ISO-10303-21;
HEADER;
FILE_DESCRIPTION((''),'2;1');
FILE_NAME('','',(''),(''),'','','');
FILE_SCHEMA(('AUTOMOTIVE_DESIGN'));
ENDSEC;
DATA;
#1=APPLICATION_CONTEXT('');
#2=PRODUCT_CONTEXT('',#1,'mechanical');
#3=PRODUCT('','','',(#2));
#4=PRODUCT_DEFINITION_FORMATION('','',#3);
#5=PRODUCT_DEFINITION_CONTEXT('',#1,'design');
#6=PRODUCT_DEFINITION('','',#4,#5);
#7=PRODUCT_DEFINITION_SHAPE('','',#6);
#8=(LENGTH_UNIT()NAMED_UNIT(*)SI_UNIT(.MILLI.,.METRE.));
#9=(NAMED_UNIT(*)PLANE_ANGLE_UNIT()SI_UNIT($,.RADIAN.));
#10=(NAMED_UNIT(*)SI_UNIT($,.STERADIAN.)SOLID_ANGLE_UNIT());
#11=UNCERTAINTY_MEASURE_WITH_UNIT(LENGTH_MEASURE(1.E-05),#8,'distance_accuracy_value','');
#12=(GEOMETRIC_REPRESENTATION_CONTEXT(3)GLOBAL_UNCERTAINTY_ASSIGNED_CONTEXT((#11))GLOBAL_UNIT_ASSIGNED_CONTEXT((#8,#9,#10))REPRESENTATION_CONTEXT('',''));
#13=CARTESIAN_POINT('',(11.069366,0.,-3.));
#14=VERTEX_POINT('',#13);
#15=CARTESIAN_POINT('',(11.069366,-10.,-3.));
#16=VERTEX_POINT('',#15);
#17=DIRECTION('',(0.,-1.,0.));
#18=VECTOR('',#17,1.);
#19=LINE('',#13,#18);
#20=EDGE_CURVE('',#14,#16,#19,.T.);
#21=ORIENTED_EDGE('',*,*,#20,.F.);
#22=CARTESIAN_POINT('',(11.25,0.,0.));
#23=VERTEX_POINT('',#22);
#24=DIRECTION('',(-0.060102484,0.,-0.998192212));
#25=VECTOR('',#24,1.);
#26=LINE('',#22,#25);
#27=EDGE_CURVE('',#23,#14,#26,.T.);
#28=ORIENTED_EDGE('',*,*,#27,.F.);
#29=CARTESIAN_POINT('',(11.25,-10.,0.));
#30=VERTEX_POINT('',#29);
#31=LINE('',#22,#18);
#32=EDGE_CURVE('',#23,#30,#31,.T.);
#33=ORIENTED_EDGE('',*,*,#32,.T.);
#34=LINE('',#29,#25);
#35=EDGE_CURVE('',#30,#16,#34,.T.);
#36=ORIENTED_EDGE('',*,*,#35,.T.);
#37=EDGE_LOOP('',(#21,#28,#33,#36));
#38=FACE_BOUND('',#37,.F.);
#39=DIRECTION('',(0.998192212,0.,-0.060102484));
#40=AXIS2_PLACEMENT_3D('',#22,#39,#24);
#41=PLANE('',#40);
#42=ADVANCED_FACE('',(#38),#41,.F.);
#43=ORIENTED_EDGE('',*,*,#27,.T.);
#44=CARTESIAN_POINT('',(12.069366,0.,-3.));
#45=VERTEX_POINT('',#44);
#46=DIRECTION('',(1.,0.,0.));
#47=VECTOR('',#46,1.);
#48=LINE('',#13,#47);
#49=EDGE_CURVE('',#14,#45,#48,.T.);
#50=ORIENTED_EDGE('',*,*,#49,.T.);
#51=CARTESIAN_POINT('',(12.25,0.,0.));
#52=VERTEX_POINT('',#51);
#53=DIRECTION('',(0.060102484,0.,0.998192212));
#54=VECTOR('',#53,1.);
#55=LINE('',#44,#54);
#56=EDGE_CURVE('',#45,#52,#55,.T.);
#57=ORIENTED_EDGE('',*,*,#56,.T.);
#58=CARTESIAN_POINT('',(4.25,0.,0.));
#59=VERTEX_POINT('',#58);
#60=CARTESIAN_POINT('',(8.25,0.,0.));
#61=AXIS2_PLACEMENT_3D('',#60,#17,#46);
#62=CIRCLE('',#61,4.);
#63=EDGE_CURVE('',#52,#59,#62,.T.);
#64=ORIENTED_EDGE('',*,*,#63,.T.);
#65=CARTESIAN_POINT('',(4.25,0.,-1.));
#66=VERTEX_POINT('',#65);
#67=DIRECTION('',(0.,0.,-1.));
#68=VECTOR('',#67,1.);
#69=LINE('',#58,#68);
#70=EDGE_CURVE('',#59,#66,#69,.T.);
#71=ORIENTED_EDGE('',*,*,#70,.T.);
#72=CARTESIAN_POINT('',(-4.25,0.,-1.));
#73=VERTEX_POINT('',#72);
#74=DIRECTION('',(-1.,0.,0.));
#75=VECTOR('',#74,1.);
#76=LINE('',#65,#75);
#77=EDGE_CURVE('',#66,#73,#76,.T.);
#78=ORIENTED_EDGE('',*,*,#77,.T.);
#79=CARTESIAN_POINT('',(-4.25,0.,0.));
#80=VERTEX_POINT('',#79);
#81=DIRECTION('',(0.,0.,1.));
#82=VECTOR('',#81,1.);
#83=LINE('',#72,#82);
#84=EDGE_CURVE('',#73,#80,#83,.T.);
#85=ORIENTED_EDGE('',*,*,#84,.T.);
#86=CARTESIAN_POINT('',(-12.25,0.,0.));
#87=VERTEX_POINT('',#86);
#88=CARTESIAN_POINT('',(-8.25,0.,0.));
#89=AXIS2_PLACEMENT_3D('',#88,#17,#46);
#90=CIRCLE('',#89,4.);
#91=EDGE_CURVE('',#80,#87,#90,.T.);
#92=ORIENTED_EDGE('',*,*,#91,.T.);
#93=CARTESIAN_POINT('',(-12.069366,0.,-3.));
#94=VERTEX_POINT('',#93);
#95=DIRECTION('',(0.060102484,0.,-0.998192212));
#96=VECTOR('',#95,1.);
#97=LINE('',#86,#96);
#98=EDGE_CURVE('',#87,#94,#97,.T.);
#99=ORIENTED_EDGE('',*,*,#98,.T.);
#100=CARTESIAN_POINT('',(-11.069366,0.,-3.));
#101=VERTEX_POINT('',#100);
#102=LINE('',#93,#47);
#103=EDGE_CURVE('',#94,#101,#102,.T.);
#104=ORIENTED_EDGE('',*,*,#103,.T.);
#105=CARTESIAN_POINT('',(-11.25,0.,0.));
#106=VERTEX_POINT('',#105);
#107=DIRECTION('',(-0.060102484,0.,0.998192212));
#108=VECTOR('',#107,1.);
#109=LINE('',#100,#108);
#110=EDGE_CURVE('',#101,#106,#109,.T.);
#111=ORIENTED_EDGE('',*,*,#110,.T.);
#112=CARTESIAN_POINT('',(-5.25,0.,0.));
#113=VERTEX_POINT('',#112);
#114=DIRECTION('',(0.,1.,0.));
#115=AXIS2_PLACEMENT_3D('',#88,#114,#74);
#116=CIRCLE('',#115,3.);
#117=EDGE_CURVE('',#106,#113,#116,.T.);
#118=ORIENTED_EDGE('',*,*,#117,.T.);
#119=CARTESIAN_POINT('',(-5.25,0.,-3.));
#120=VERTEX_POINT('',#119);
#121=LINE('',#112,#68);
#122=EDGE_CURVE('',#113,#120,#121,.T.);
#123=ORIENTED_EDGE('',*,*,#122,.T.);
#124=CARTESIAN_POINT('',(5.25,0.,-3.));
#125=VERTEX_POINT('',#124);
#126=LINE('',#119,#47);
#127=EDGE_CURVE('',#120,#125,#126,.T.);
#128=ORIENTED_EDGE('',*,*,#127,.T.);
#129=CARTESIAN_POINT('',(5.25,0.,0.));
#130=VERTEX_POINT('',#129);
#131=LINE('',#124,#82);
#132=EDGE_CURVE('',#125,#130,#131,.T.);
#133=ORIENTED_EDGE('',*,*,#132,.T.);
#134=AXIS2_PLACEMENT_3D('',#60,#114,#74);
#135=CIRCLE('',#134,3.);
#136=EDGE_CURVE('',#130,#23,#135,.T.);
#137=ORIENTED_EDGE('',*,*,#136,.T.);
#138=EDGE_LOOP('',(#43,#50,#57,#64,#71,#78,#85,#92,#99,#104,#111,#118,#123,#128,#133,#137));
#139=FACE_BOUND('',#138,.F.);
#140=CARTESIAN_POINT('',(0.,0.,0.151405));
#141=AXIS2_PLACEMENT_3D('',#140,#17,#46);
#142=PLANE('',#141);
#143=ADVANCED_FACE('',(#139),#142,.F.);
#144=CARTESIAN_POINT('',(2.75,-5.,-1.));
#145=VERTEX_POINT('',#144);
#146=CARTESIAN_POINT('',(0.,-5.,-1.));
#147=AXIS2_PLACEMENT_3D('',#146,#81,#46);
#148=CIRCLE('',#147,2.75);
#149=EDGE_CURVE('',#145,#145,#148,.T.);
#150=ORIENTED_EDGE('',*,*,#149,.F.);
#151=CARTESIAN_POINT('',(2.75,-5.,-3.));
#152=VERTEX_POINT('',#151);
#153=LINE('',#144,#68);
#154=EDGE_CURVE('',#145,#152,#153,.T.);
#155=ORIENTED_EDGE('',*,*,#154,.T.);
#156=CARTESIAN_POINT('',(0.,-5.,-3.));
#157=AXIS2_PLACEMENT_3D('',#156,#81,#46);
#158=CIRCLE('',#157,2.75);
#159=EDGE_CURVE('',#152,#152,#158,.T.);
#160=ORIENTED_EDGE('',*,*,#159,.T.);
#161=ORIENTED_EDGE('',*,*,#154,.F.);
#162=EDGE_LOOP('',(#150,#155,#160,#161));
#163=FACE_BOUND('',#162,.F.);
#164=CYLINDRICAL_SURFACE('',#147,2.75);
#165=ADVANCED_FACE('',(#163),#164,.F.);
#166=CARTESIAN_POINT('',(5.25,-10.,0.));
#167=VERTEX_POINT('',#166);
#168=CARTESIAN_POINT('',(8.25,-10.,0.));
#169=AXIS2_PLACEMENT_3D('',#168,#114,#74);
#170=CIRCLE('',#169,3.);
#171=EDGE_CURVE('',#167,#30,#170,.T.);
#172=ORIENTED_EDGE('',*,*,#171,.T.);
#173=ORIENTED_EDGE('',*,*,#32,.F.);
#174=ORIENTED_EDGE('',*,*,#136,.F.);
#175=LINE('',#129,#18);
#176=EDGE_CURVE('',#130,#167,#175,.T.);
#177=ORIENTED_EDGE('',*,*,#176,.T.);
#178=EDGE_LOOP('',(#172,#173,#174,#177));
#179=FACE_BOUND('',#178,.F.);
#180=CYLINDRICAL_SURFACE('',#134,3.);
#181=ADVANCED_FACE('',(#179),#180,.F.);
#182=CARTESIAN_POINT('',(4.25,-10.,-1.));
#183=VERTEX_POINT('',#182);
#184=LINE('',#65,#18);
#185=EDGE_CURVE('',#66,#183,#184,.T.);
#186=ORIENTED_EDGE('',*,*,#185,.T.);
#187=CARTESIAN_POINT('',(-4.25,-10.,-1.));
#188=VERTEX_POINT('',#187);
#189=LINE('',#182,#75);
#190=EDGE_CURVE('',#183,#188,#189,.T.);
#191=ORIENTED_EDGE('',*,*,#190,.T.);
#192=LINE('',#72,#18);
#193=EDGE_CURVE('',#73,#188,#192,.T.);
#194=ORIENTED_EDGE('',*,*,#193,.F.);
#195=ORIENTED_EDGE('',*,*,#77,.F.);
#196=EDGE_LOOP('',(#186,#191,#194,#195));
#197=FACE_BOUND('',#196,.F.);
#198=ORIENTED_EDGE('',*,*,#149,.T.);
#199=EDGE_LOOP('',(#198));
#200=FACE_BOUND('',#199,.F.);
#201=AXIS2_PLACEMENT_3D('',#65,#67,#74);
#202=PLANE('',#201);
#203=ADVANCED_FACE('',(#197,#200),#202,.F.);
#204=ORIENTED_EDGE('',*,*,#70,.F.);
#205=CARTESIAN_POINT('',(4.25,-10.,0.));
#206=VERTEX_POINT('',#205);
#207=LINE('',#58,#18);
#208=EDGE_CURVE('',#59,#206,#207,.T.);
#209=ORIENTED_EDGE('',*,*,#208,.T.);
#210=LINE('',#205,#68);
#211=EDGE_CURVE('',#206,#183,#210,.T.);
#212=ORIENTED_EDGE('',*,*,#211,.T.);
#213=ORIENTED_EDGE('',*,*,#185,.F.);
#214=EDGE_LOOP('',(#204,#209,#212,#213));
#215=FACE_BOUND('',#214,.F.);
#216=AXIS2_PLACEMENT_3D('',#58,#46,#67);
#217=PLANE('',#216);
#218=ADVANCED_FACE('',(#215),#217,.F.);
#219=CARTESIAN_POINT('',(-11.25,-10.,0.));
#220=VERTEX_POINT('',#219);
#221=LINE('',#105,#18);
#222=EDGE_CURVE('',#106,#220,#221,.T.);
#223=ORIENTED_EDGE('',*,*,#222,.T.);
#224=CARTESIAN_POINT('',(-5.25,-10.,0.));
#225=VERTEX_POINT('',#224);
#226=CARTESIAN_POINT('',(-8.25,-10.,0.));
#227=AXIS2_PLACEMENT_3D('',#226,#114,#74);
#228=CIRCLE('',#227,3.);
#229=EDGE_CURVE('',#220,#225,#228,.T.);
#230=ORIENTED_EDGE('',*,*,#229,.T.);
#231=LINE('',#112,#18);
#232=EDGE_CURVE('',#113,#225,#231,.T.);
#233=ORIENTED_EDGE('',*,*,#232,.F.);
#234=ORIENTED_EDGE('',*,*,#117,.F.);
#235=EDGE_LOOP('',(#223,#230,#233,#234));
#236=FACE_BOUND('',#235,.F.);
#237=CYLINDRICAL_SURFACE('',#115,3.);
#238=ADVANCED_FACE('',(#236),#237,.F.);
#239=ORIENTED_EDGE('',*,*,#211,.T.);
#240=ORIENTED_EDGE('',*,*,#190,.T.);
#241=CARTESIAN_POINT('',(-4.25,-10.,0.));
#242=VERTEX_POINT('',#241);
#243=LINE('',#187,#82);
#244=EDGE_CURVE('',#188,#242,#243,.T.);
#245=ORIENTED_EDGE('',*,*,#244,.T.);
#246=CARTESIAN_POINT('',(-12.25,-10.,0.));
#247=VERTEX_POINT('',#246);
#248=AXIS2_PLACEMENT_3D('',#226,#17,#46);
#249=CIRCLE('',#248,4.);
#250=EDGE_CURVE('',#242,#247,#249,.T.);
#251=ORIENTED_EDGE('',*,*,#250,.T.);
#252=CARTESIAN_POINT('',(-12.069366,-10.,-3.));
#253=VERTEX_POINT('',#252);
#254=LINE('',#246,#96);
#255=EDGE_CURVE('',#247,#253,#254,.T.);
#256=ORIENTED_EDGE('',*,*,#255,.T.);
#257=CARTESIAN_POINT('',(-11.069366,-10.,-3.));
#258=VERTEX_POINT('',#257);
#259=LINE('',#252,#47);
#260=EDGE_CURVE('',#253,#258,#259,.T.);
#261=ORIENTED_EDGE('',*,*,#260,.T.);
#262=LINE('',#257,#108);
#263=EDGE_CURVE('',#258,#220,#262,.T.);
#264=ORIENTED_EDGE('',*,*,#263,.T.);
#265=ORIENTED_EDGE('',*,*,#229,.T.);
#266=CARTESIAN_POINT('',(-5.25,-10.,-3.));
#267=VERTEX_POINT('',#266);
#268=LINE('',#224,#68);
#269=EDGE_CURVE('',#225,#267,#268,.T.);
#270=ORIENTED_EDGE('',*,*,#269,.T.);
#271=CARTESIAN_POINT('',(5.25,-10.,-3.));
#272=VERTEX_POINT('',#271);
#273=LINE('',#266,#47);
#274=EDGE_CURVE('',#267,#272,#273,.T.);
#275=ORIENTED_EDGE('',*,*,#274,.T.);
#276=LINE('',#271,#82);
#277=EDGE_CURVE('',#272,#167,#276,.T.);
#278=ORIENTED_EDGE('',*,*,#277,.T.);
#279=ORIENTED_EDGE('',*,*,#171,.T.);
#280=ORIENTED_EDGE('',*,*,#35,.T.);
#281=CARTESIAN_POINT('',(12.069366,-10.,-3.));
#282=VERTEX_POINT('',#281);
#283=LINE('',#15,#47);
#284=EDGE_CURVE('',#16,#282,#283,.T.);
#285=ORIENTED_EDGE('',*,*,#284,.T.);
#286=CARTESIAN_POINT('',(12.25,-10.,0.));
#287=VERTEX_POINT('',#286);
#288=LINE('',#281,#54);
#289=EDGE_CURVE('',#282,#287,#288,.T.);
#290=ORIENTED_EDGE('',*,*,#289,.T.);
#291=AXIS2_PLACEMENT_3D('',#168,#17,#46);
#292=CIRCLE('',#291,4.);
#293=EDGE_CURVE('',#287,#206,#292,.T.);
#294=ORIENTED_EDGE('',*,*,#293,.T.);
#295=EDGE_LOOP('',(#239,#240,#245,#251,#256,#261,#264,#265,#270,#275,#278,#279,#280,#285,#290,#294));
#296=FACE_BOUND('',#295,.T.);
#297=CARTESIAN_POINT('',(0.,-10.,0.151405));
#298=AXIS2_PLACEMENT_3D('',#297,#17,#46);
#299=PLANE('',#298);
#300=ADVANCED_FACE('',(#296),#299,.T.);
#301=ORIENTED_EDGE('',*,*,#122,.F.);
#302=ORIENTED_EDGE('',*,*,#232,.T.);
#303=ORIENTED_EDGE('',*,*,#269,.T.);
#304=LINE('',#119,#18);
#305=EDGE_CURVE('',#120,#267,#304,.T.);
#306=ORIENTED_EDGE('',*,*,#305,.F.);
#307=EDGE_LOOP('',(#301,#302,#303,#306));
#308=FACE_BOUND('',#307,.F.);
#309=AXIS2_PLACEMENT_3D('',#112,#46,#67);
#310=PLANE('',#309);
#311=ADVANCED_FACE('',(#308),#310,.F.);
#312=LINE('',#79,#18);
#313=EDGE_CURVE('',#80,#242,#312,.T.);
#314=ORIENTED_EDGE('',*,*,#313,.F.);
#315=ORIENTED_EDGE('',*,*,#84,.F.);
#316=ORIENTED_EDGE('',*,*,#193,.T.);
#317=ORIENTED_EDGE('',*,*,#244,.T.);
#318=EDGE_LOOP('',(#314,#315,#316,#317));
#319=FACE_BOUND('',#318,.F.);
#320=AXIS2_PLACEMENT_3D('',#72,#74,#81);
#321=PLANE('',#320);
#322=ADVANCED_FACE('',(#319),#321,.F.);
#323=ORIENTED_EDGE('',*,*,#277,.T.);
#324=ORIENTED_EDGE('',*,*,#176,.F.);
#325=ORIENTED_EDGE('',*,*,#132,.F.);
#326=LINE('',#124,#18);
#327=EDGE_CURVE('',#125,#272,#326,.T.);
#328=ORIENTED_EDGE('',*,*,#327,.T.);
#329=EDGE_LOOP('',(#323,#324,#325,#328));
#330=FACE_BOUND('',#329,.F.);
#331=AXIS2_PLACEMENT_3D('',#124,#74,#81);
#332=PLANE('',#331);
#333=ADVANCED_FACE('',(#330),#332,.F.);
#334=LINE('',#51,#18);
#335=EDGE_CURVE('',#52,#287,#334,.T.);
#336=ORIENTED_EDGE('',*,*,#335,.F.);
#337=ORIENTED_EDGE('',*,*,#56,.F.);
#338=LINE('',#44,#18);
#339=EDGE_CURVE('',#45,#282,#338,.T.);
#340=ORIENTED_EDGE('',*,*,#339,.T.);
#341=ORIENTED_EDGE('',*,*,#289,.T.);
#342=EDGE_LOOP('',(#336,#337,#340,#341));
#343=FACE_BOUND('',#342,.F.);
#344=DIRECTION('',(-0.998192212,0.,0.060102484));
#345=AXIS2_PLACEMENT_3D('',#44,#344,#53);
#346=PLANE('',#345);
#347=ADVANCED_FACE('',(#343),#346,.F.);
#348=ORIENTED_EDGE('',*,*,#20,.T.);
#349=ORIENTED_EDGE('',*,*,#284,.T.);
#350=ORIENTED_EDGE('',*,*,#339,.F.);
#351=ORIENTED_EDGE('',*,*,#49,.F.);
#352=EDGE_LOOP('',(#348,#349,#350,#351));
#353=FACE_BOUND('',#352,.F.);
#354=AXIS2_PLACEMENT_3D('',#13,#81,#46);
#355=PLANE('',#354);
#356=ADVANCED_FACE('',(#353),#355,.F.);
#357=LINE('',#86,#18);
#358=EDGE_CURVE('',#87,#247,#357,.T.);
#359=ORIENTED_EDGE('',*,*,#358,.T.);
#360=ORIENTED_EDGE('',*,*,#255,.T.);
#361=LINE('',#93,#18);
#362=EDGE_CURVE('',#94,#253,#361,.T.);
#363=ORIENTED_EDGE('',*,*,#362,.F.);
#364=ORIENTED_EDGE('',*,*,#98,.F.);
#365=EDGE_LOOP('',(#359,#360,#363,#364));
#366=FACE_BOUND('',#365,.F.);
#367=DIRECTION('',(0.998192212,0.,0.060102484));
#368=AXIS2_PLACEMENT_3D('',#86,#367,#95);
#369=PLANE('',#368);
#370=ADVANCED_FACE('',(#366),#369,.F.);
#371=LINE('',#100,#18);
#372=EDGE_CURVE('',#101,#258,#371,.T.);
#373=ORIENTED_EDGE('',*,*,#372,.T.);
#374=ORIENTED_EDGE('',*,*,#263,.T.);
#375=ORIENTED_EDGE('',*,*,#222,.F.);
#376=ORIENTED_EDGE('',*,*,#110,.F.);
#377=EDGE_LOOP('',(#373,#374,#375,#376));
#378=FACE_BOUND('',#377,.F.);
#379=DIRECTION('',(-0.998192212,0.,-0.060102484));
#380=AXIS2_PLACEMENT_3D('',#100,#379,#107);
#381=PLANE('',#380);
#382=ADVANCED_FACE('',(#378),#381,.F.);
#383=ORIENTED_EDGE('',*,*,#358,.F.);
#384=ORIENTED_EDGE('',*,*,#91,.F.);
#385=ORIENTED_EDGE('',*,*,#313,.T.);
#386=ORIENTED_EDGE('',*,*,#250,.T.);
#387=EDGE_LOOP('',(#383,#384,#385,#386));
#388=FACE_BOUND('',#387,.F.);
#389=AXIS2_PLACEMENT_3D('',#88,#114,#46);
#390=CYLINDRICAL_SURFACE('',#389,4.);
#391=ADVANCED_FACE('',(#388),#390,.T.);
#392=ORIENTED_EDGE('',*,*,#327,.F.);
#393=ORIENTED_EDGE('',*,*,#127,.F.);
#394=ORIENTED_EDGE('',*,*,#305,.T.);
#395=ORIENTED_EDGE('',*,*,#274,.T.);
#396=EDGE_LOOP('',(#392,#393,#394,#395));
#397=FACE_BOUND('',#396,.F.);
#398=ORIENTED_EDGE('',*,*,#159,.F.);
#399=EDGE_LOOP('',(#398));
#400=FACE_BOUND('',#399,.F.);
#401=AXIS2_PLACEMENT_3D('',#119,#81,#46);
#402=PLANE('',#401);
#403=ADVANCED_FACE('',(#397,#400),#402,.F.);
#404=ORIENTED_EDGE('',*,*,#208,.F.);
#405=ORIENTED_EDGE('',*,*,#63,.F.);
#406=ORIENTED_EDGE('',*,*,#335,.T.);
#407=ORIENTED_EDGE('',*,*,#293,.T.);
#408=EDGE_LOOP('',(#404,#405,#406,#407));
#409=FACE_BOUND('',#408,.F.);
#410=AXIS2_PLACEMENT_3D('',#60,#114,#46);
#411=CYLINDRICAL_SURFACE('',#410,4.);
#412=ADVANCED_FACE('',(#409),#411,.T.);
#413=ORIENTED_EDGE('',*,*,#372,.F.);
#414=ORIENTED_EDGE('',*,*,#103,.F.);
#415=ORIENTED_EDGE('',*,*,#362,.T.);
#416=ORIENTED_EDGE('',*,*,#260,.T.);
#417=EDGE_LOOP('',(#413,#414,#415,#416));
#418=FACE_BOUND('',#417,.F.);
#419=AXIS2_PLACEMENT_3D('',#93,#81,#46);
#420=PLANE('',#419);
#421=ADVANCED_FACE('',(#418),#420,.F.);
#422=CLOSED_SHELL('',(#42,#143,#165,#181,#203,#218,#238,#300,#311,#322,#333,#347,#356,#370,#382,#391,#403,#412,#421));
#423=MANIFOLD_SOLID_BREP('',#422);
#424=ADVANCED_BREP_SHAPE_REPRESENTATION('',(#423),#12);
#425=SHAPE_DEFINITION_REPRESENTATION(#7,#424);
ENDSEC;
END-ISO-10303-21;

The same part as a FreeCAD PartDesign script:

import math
import FreeCAD as App
import Part
import Sketcher
from FreeCAD import Vector
Q = App.Units.Quantity

doc = App.newDocument("Part")
body = doc.addObject("PartDesign::Body", "Body")

sketch1 = body.newObject("Sketcher::SketchObject", "Sketch")
sketch1.AttachmentSupport = (doc.getObject("XZ_Plane"), [""])
sketch1.MapMode = "FlatFace"
sketch1.addGeometry([
    Part.ArcOfCircle(Part.Circle(Vector(-8.2, 0, 0), Vector(0, 0, 1), 4), math.radians(0), math.radians(180)),
    Part.LineSegment(Vector(-12.2, 0, 0), Vector(-12.1, -3, 0)),
    Part.LineSegment(Vector(-12.1, -3, 0), Vector(-11.1, -3, 0)),
    Part.LineSegment(Vector(-11.1, -3, 0), Vector(-11.2, 0, 0)),
    Part.ArcOfCircle(Part.Circle(Vector(-8.2, 0, 0), Vector(0, 0, 1), 3), math.radians(0), math.radians(180)),
    Part.LineSegment(Vector(-5.2, 0, 0), Vector(-5.2, -3, 0)),
    Part.LineSegment(Vector(-5.2, -3, 0), Vector(5.2, -3, 0)),
    Part.LineSegment(Vector(5.2, -3, 0), Vector(5.2, 0, 0)),
    Part.ArcOfCircle(Part.Circle(Vector(8.2, 0, 0), Vector(0, 0, 1), 3), math.radians(0), math.radians(180)),
    Part.LineSegment(Vector(11.2, 0, 0), Vector(11.1, -3, 0)),
    Part.LineSegment(Vector(11.1, -3, 0), Vector(12.1, -3, 0)),
    Part.LineSegment(Vector(12.1, -3, 0), Vector(12.2, 0, 0)),
    Part.ArcOfCircle(Part.Circle(Vector(8.2, 0, 0), Vector(0, 0, 1), 4), math.radians(0), math.radians(180)),
    Part.LineSegment(Vector(4.2, 0, 0), Vector(4.2, -1, 0)),
    Part.LineSegment(Vector(4.2, -1, 0), Vector(-4.2, -1, 0)),
    Part.LineSegment(Vector(-4.2, -1, 0), Vector(-4.2, 0, 0)),
], False)
sketch1.addConstraint([
    Sketcher.Constraint("Coincident", 0, 2, 1, 1),
    Sketcher.Constraint("Coincident", 1, 2, 2, 1),
    Sketcher.Constraint("Coincident", 2, 2, 3, 1),
    Sketcher.Constraint("Coincident", 3, 2, 4, 2),
    Sketcher.Constraint("Tangent", 4, 1, 5, 1),
    Sketcher.Constraint("Coincident", 5, 2, 6, 1),
    Sketcher.Constraint("Coincident", 6, 2, 7, 1),
    Sketcher.Constraint("Tangent", 7, 2, 8, 2),
    Sketcher.Constraint("Coincident", 8, 1, 9, 1),
    Sketcher.Constraint("Coincident", 9, 2, 10, 1),
    Sketcher.Constraint("Coincident", 10, 2, 11, 1),
    Sketcher.Constraint("Coincident", 11, 2, 12, 1),
    Sketcher.Constraint("Tangent", 12, 2, 13, 1),
    Sketcher.Constraint("Coincident", 13, 2, 14, 1),
    Sketcher.Constraint("Coincident", 14, 2, 15, 1),
    Sketcher.Constraint("Tangent", 15, 2, 0, 1),
    Sketcher.Constraint("Horizontal", 2),
    Sketcher.Constraint("Vertical", 5),
    Sketcher.Constraint("Horizontal", 6),
    Sketcher.Constraint("Vertical", 7),
    Sketcher.Constraint("Horizontal", 10),
    Sketcher.Constraint("Vertical", 13),
    Sketcher.Constraint("Horizontal", 14),
    Sketcher.Constraint("Vertical", 15),
    Sketcher.Constraint("Coincident", 4, 3, 0, 3),
    Sketcher.Constraint("Coincident", 12, 3, 8, 3),
    Sketcher.Constraint("Equal", 4, 8),
    Sketcher.Constraint("Equal", 0, 12),
    Sketcher.Constraint("Symmetric", 0, 3, 8, 3, -1, 1),
    Sketcher.Constraint("Symmetric", 2, 2, 9, 2, -2),
    Sketcher.Constraint("PointOnObject", 0, 3, -1),
    Sketcher.Constraint("PointOnObject", 0, 2, -1),
    Sketcher.Constraint("PointOnObject", 3, 2, -1),
    Sketcher.Constraint("PointOnObject", 8, 1, -1),
    Sketcher.Constraint("PointOnObject", 11, 2, -1),
    Sketcher.Constraint("Parallel", 1, 3),
    Sketcher.Constraint("Parallel", 9, 11),
    Sketcher.Constraint("Horizontal", 2, 2, 5, 2),
    Sketcher.Constraint("Equal", 10, 13),
    Sketcher.Constraint("Radius", 0, Q("4 mm")),
    Sketcher.Constraint("Radius", 4, Q("3 mm")),
    Sketcher.Constraint("DistanceY", 5, 2, 5, 1, Q("3 mm")),
    Sketcher.Constraint("DistanceX", 6, 1, 6, 2, Q("10.5 mm")),
    Sketcher.Constraint("Distance", 1, Q("3.005433 mm")),
])
pad1 = body.newObject("PartDesign::Pad", "Pad")
pad1.Profile = sketch1
pad1.Length = 10

sketch2 = body.newObject("Sketcher::SketchObject", "Sketch001")
sketch2.AttachmentSupport = (doc.getObject("XY_Plane"), [""])
sketch2.MapMode = "FlatFace"
sketch2.AttachmentOffset = App.Placement(Vector(0, 0, -1), App.Rotation())
sketch2.addGeometry(Part.Circle(Vector(0, -5, 0), Vector(0, 0, 1), 2.8), False)
sketch2.addConstraint([
    Sketcher.Constraint("PointOnObject", 0, 3, -2),
    Sketcher.Constraint("Diameter", 0, Q("5.5 mm")),
    Sketcher.Constraint("DistanceY", 0, 3, -1, 1, Q("5 mm")),
])
pocket1 = body.newObject("PartDesign::Pocket", "Pocket")
pocket1.Profile = sketch2
pocket1.Length = 2.5

doc.recompute()
